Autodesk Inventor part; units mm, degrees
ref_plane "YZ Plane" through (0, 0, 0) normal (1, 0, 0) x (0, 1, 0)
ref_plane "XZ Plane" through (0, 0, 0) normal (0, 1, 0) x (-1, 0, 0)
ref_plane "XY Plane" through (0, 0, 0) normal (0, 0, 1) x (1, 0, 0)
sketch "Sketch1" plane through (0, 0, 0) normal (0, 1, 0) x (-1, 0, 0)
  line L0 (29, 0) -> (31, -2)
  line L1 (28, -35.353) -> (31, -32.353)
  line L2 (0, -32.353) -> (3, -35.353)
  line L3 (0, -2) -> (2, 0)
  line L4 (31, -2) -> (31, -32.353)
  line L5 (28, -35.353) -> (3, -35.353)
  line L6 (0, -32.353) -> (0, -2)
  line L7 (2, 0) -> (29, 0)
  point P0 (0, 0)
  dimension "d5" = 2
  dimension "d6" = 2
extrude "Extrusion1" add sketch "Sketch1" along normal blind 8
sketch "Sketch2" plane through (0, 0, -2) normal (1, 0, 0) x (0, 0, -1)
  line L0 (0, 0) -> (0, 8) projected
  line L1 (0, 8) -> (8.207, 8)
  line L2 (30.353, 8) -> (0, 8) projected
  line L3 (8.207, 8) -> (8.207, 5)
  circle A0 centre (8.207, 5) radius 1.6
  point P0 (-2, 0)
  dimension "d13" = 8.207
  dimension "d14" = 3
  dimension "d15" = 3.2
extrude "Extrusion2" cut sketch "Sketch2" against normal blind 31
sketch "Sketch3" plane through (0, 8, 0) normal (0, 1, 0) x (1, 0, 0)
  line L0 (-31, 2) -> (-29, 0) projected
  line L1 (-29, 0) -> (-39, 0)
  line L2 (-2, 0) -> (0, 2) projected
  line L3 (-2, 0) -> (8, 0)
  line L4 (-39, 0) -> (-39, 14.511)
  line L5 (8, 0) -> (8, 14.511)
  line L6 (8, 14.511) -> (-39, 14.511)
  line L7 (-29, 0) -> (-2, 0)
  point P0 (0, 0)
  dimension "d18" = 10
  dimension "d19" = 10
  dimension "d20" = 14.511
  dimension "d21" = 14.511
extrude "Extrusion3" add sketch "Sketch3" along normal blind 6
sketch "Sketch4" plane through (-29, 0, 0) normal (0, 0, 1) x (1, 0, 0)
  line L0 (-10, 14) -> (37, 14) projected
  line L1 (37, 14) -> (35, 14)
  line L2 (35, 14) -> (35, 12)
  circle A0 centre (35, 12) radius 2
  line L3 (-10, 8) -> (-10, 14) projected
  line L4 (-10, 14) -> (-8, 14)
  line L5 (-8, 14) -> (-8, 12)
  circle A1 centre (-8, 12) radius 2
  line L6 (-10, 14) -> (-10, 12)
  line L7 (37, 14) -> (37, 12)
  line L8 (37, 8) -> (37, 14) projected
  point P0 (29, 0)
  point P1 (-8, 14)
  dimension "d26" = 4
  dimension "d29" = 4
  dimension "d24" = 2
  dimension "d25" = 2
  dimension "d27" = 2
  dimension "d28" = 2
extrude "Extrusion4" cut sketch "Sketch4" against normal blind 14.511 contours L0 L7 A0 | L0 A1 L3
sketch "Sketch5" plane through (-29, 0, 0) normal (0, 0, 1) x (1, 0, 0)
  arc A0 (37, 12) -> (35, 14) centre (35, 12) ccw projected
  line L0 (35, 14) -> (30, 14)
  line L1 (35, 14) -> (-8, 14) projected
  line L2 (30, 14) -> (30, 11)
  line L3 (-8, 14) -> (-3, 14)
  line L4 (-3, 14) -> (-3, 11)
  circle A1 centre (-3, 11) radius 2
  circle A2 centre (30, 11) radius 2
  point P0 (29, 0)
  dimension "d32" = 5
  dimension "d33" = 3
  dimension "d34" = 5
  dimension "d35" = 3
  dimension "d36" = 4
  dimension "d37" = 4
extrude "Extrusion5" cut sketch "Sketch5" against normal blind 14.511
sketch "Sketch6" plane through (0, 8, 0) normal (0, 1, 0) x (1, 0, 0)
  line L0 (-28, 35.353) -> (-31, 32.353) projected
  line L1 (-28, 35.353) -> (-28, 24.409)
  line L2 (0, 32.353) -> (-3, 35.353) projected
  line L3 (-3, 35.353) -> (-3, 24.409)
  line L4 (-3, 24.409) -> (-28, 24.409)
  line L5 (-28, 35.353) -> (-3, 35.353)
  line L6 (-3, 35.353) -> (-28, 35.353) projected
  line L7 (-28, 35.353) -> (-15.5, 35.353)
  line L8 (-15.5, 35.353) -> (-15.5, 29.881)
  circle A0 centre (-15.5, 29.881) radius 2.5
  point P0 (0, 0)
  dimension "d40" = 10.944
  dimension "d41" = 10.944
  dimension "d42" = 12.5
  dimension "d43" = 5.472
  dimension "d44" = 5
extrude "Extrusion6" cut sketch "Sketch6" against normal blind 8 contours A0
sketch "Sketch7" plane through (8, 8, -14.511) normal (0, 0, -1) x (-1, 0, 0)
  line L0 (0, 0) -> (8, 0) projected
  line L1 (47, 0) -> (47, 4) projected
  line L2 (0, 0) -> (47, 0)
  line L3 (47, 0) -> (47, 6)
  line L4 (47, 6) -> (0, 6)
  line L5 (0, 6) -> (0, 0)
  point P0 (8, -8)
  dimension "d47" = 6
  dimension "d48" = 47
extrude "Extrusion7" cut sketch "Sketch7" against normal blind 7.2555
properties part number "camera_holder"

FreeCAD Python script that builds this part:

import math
import FreeCAD as App
import Part
import Sketcher
Q = App.Units.Quantity


def add_polygon(sketch, points):
    """Adds a closed chain of lines whose ends are joined by coincident constraints."""
    first, n = sketch.GeometryCount, len(points)
    for a, b in zip(points, points[1:] + points[:1]):
        sketch.addGeometry(Part.LineSegment(App.Vector(*a, 0), App.Vector(*b, 0)), False)
    for i in range(n):
        sketch.addConstraint(Sketcher.Constraint("Coincident", first + i, 2, first + (i + 1) % n, 1))

doc = App.newDocument("Part")
body = doc.addObject("PartDesign::Body", "Body")

sketch1 = body.newObject("Sketcher::SketchObject", "Sketch")
sketch1.AttachmentSupport = (doc.getObject("XZ_Plane"), [""])
sketch1.MapMode = "FlatFace"
add_polygon(sketch1, [(-31, -2), (-29, 0), (-2, 0), (0, -2), (0, -32.353), (-3, -35.353), (-28, -35.353), (-31, -32.353)])
sketch1.addConstraint([
    Sketcher.Constraint("Horizontal", 1),
    Sketcher.Constraint("Vertical", 3),
    Sketcher.Constraint("Horizontal", 5),
    Sketcher.Constraint("Vertical", 7),
    Sketcher.Constraint("PointOnObject", 0, 2, -1),
    Sketcher.Constraint("PointOnObject", 2, 2, -2),
    Sketcher.Constraint("Perpendicular", 0, 2),
    Sketcher.Constraint("Perpendicular", 2, 4),
    Sketcher.Constraint("Perpendicular", 4, 6),
    Sketcher.Constraint("Horizontal", 3, 2, 6, 2),
    Sketcher.Constraint("Horizontal", 2, 2, 7, 2),
    Sketcher.Constraint("Equal", 0, 2),
    Sketcher.Constraint("DistanceX", 1, 2, -1, 1, Q("2 mm")),
    Sketcher.Constraint("DistanceX", 1, 1, 1, 2, Q("27 mm")),
    Sketcher.Constraint("DistanceX", 5, 2, 5, 1, Q("25 mm")),
    Sketcher.Constraint("DistanceY", 3, 2, 3, 1, Q("30.353 mm")),
])
pad1 = body.newObject("PartDesign::Pad", "Pad")
pad1.Profile = sketch1
pad1.Length = 8
pad1.Reversed = True

sketch2 = body.newObject("Sketcher::SketchObject", "Sketch001")
sketch2.AttachmentSupport = (doc.getObject("YZ_Plane"), [""])
sketch2.MapMode = "FlatFace"
sketch2.addGeometry(Part.Circle(App.Vector(5, -10.207, 0), App.Vector(0, 0, 1), 1.6), False)
sketch2.addConstraint([
    Sketcher.Constraint("Diameter", 0, Q("3.2 mm")),
    Sketcher.Constraint("DistanceX", -1, 1, 0, 3, Q("5 mm")),
    Sketcher.Constraint("DistanceY", 0, 3, -1, 1, Q("10.207 mm")),
])
pocket1 = body.newObject("PartDesign::Pocket", "Pocket")
pocket1.Profile = sketch2
pocket1.Length = 31

sketch3 = body.newObject("Sketcher::SketchObject", "Sketch002")
sketch3.AttachmentSupport = (doc.getObject("XZ_Plane"), [""])
sketch3.MapMode = "FlatFace"
sketch3.AttachmentOffset = App.Placement(App.Vector(0, 0, -8), App.Rotation())
add_polygon(sketch3, [(-39, 0), (8, 0), (8, -14.511), (-39, -14.511)])
sketch3.addConstraint([
    Sketcher.Constraint("Horizontal", 0),
    Sketcher.Constraint("Vertical", 1),
    Sketcher.Constraint("Horizontal", 2),
    Sketcher.Constraint("Vertical", 3),
    Sketcher.Constraint("PointOnObject", 0, 2, -1),
    Sketcher.Constraint("DistanceX", 0, 1, 0, 2, Q("47 mm")),
    Sketcher.Constraint("DistanceY", 1, 2, 1, 1, Q("14.511 mm")),
    Sketcher.Constraint("DistanceX", -1, 1, 0, 2, Q("8 mm")),
])
pad2 = body.newObject("PartDesign::Pad", "Pad001")
pad2.Profile = sketch3
pad2.Length = 6
pad2.Reversed = True

sketch4 = body.newObject("Sketcher::SketchObject", "Sketch003")
sketch4.AttachmentSupport = (doc.getObject("XY_Plane"), [""])
sketch4.MapMode = "FlatFace"
sketch4.addGeometry([
    Part.LineSegment(App.Vector(8, 14, 0), App.Vector(6, 14, 0)),
    Part.ArcOfCircle(Part.Circle(App.Vector(6, 12, 0), App.Vector(0, 0, 1), 2), math.radians(0), math.radians(90)),
    Part.LineSegment(App.Vector(8, 12, 0), App.Vector(8, 14, 0)),
    Part.LineSegment(App.Vector(-37, 14, 0), App.Vector(-39, 14, 0)),
    Part.LineSegment(App.Vector(-39, 14, 0), App.Vector(-39, 12, 0)),
    Part.ArcOfCircle(Part.Circle(App.Vector(-37, 12, 0), App.Vector(0, 0, 1), 2), math.radians(90), math.radians(180)),
], False)
sketch4.addConstraint([
    Sketcher.Constraint("Tangent", 0, 2, 1, 2),
    Sketcher.Constraint("Tangent", 1, 1, 2, 1),
    Sketcher.Constraint("Coincident", 2, 2, 0, 1),
    Sketcher.Constraint("Coincident", 3, 2, 4, 1),
    Sketcher.Constraint("Tangent", 4, 2, 5, 2),
    Sketcher.Constraint("Tangent", 5, 1, 3, 1),
    Sketcher.Constraint("Horizontal", 0),
    Sketcher.Constraint("Vertical", 2),
    Sketcher.Constraint("Horizontal", 3),
    Sketcher.Constraint("Vertical", 4),
    Sketcher.Constraint("Equal", 1, 5),
    Sketcher.Constraint("Horizontal", 1, 3, 5, 3),
    Sketcher.Constraint("Radius", 1, Q("2 mm")),
    Sketcher.Constraint("DistanceX", -1, 1, 1, 3, Q("6 mm")),
    Sketcher.Constraint("DistanceY", -1, 1, 1, 3, Q("12 mm")),
    Sketcher.Constraint("DistanceX", 5, 3, -1, 1, Q("37 mm")),
])
pocket2 = body.newObject("PartDesign::Pocket", "Pocket001")
pocket2.Profile = sketch4
pocket2.Length = 14.511

sketch5 = body.newObject("Sketcher::SketchObject", "Sketch004")
sketch5.AttachmentSupport = (doc.getObject("XY_Plane"), [""])
sketch5.MapMode = "FlatFace"
sketch5.addGeometry([
    Part.Circle(App.Vector(-32, 11, 0), App.Vector(0, 0, 1), 2),
    Part.Circle(App.Vector(1, 11, 0), App.Vector(0, 0, 1), 2),
], False)
sketch5.addConstraint([
    Sketcher.Constraint("Equal", 0, 1),
    Sketcher.Constraint("Horizontal", 0, 3, 1, 3),
    Sketcher.Constraint("Diameter", 0, Q("4 mm")),
    Sketcher.Constraint("DistanceX", 0, 3, -1, 1, Q("32 mm")),
    Sketcher.Constraint("DistanceY", -1, 1, 0, 3, Q("11 mm")),
    Sketcher.Constraint("DistanceX", -1, 1, 1, 3, Q("1 mm")),
])
pocket3 = body.newObject("PartDesign::Pocket", "Pocket002")
pocket3.Profile = sketch5
pocket3.Length = 14.511

sketch6 = body.newObject("Sketcher::SketchObject", "Sketch005")
sketch6.AttachmentSupport = (doc.getObject("XZ_Plane"), [""])
sketch6.MapMode = "FlatFace"
sketch6.AttachmentOffset = App.Placement(App.Vector(0, 0, -8), App.Rotation())
sketch6.addGeometry(Part.Circle(App.Vector(-15.5, -29.881, 0), App.Vector(0, 0, 1), 2.5), False)
sketch6.addConstraint([
    Sketcher.Constraint("Diameter", 0, Q("5 mm")),
    Sketcher.Constraint("DistanceX", 0, 3, -1, 1, Q("15.5 mm")),
    Sketcher.Constraint("DistanceY", 0, 3, -1, 1, Q("29.881 mm")),
])
pocket4 = body.newObject("PartDesign::Pocket", "Pocket003")
pocket4.Profile = sketch6
pocket4.Length = 8
pocket4.Reversed = True

sketch7 = body.newObject("Sketcher::SketchObject", "Sketch006")
sketch7.AttachmentSupport = (doc.getObject("XY_Plane"), [""])
sketch7.MapMode = "FlatFace"
sketch7.AttachmentOffset = App.Placement(App.Vector(0, 0, -14.511), App.Rotation())
add_polygon(sketch7, [(8, 14), (8, 8), (-39, 8), (-39, 14)])
sketch7.addConstraint([
    Sketcher.Constraint("Vertical", 0),
    Sketcher.Constraint("Horizontal", 1),
    Sketcher.Constraint("Vertical", 2),
    Sketcher.Constraint("Horizontal", 3),
    Sketcher.Constraint("DistanceX", 1, 2, 1, 1, Q("47 mm")),
    Sketcher.Constraint("DistanceY", 0, 2, 0, 1, Q("6 mm")),
    Sketcher.Constraint("DistanceX", -1, 1, 0, 2, Q("8 mm")),
    Sketcher.Constraint("DistanceY", -1, 1, 0, 2, Q("8 mm")),
])
pocket5 = body.newObject("PartDesign::Pocket", "Pocket004")
pocket5.Profile = sketch7
pocket5.Length = 7.2555
pocket5.Reversed = True

doc.recompute()
